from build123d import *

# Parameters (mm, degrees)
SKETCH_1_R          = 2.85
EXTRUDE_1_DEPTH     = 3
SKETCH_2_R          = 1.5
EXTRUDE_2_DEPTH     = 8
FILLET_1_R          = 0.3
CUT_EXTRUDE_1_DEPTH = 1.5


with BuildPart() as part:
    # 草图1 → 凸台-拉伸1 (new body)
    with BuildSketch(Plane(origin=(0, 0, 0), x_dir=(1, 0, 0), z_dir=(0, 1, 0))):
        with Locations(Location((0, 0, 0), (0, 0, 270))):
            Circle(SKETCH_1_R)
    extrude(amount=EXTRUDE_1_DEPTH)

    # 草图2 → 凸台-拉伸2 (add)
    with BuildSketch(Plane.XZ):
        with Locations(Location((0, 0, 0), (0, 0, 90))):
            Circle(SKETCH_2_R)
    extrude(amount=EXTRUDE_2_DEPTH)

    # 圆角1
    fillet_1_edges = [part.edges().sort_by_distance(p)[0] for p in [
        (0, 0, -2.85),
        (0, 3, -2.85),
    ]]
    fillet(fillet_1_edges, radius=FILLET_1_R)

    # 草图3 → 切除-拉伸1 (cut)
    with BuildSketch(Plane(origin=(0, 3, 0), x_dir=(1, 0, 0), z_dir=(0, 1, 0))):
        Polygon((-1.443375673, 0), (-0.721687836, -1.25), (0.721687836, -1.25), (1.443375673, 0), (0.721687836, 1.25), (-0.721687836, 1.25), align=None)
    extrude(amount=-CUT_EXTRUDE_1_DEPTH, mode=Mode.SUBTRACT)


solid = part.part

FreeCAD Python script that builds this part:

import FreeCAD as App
import Part
import Sketcher
from FreeCAD import Vector
Q = App.Units.Quantity


def edges_at(feature, points):
    """Names of the edges that pass closest to the given points."""
    edges = feature.Shape.Edges
    near = lambda p: min(range(len(edges)), key=lambda i: edges[i].distToShape(Part.Vertex(*p))[0])
    return sorted({f"Edge{near(p) + 1}" for p in points})


def add_polygon(sketch, points):
    """Adds a closed chain of lines whose ends are joined by coincident constraints."""
    first, n = sketch.GeometryCount, len(points)
    for a, b in zip(points, points[1:] + points[:1]):
        sketch.addGeometry(Part.LineSegment(App.Vector(*a, 0), App.Vector(*b, 0)), False)
    for i in range(n):
        sketch.addConstraint(Sketcher.Constraint("Coincident", first + i, 2, first + (i + 1) % n, 1))

doc = App.newDocument("Part")
body = doc.addObject("PartDesign::Body", "Body")

sketch1 = body.newObject("Sketcher::SketchObject", "Sketch")
sketch1.AttachmentSupport = (doc.getObject("XZ_Plane"), [""])
sketch1.MapMode = "FlatFace"
sketch1.addGeometry(Part.Circle(Vector(0, 0, 0), Vector(0, 0, 1), 2.9), False)
sketch1.addConstraint(Sketcher.Constraint("Coincident", 0, 3, -1, 1))
sketch1.addConstraint(Sketcher.Constraint("Diameter", 0, 5.7))
pad1 = body.newObject("PartDesign::Pad", "Pad")
pad1.Profile = sketch1
pad1.Length = 3
pad1.Reversed = True

sketch2 = body.newObject("Sketcher::SketchObject", "Sketch001")
sketch2.AttachmentSupport = (doc.getObject("XZ_Plane"), [""])
sketch2.MapMode = "FlatFace"
sketch2.addGeometry(Part.Circle(Vector(0, 0, 0), Vector(0, 0, 1), 1.5), False)
sketch2.addConstraint(Sketcher.Constraint("Coincident", 0, 3, -1, 1))
sketch2.addConstraint(Sketcher.Constraint("Diameter", 0, 3.0))
pad2 = body.newObject("PartDesign::Pad", "Pad001")
pad2.Profile = sketch2
pad2.Length = 8
doc.recompute()

fillet = body.newObject("PartDesign::Fillet", "Fillet")
fillet.Base = (pad2, edges_at(pad2, [(0, 0, -2.85), (0, 3, -2.85)]))
fillet.Radius = 0.3

sketch3 = body.newObject("Sketcher::SketchObject", "Sketch002")
sketch3.AttachmentSupport = (doc.getObject("XZ_Plane"), [""])
sketch3.MapMode = "FlatFace"
sketch3.AttachmentOffset = App.Placement(Vector(0, 0, -3), App.Rotation())
add_polygon(sketch3, [(-1.4, 0), (-0.7, 1.2), (0.7, 1.2), (1.4, 0), (0.7, -1.2), (-0.7, -1.2)])
sketch3.addConstraint(Sketcher.Constraint("Horizontal", 1))
sketch3.addConstraint(Sketcher.Constraint("Horizontal", 4))
sketch3.addConstraint(Sketcher.Constraint("Symmetric", 0, 2, 3, 2, -1, 1))
sketch3.addConstraint(Sketcher.Constraint("Symmetric", 2, 2, 5, 2, -1, 1))
sketch3.addConstraint(Sketcher.Constraint("PointOnObject", 2, 2, -1))
sketch3.addConstraint(Sketcher.Constraint("Parallel", 2, 5))
sketch3.addConstraint(Sketcher.Constraint("Vertical", 1, 2, 3, 2))
sketch3.addConstraint(Sketcher.Constraint("Angle", 0, Q("60 deg")))
sketch3.addConstraint(Sketcher.Constraint("DistanceY", 3, 2, 1, 2, 2.5))
sketch3.addConstraint(Sketcher.Constraint("DistanceX", 1, 1, 1, 2, 1.443376))
pocket1 = body.newObject("PartDesign::Pocket", "Pocket")
pocket1.Profile = sketch3
pocket1.Length = 1.5
pocket1.Reversed = True

doc.recompute()
